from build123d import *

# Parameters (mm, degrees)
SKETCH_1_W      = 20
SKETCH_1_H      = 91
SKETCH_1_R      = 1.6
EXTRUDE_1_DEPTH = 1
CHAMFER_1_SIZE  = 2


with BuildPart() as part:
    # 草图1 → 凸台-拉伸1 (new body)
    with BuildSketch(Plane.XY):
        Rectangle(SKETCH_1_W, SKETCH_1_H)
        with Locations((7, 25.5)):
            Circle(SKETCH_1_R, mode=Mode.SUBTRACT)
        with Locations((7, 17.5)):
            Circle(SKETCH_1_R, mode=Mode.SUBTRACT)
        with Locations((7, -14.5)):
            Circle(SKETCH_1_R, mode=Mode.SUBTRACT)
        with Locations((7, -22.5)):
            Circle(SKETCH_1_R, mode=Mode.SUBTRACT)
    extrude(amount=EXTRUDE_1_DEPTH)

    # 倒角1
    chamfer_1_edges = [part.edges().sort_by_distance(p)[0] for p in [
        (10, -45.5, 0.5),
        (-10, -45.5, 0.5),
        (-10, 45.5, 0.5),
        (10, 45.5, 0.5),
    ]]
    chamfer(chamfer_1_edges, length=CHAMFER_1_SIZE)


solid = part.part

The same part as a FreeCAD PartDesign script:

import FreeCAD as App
import Part
import Sketcher

V = App.Vector


def edges_at(feature, points):
    """Names of the edges that pass closest to the given points."""
    edges = feature.Shape.Edges
    near = lambda p: min(range(len(edges)), key=lambda i: edges[i].distToShape(Part.Vertex(*p))[0])
    return sorted({f"Edge{near(p) + 1}" for p in points})

doc = App.newDocument("Part")
body = doc.addObject("PartDesign::Body", "Body")

sketch1 = doc.addObject("Sketcher::SketchObject", "Sketch")
body.addObject(sketch1)
sketch1.AttachmentSupport = (doc.XY_Plane, [""])
sketch1.MapMode = "FlatFace"
sketch1.addGeometry(Part.LineSegment(V(-10, 45.5, 0), V(-10, -45.5, 0)), False)
sketch1.addGeometry(Part.LineSegment(V(-10, -45.5, 0), V(10, -45.5, 0)), False)
sketch1.addGeometry(Part.LineSegment(V(10, -45.5, 0), V(10, 45.5, 0)), False)
sketch1.addGeometry(Part.LineSegment(V(10, 45.5, 0), V(-10, 45.5, 0)), False)
sketch1.addGeometry(Part.Circle(V(7, -22.5, 0), V(0, 0, 1), 1.6), False)
sketch1.addGeometry(Part.Circle(V(7, -14.5, 0), V(0, 0, 1), 1.6), False)
sketch1.addGeometry(Part.Circle(V(7, 17.5, 0), V(0, 0, 1), 1.6), False)
sketch1.addGeometry(Part.Circle(V(7, 25.5, 0), V(0, 0, 1), 1.6), False)
sketch1.addConstraint(Sketcher.Constraint("Coincident", 0, 2, 1, 1))
sketch1.addConstraint(Sketcher.Constraint("Coincident", 1, 2, 2, 1))
sketch1.addConstraint(Sketcher.Constraint("Coincident", 2, 2, 3, 1))
sketch1.addConstraint(Sketcher.Constraint("Coincident", 3, 2, 0, 1))
sketch1.addConstraint(Sketcher.Constraint("Vertical", 0))
sketch1.addConstraint(Sketcher.Constraint("Horizontal", 1))
sketch1.addConstraint(Sketcher.Constraint("Vertical", 2))
sketch1.addConstraint(Sketcher.Constraint("Horizontal", 3))
sketch1.addConstraint(Sketcher.Constraint("Equal", 4, 5))
sketch1.addConstraint(Sketcher.Constraint("Equal", 5, 6))
sketch1.addConstraint(Sketcher.Constraint("Equal", 6, 7))
sketch1.addConstraint(Sketcher.Constraint("Symmetric", 0, 2, 2, 2, -1, 1))
sketch1.addConstraint(Sketcher.Constraint("Vertical", 4, 3, 5, 3))
sketch1.addConstraint(Sketcher.Constraint("Vertical", 5, 3, 6, 3))
sketch1.addConstraint(Sketcher.Constraint("Vertical", 6, 3, 7, 3))
sketch1.addConstraint(Sketcher.Constraint("Diameter", 4, 3.2))
sketch1.addConstraint(Sketcher.Constraint("DistanceX", 1, 1, 1, 2, 20.0))
sketch1.addConstraint(Sketcher.Constraint("DistanceY", 0, 2, 0, 1, 91.0))
sketch1.addConstraint(Sketcher.Constraint("DistanceX", -1, 1, 4, 3, 7.0))
sketch1.addConstraint(Sketcher.Constraint("DistanceY", 4, 3, 5, 3, 8.0))
sketch1.addConstraint(Sketcher.Constraint("DistanceY", 5, 3, 6, 3, 32.0))
sketch1.addConstraint(Sketcher.Constraint("DistanceY", 6, 3, 7, 3, 8.0))
sketch1.addConstraint(Sketcher.Constraint("DistanceY", 0, 2, 4, 3, 23.0))
pad1 = doc.addObject("PartDesign::Pad", "Pad")
body.addObject(pad1)
pad1.Profile = sketch1
pad1.Length = 1
doc.recompute()

chamfer = doc.addObject("PartDesign::Chamfer", "Chamfer")
body.addObject(chamfer)
chamfer.Base = (pad1, edges_at(pad1, [
    (10, -45.5, 0.5),
    (-10, -45.5, 0.5),
    (-10, 45.5, 0.5),
    (10, 45.5, 0.5),
]))
chamfer.Size = 2

doc.recompute()
